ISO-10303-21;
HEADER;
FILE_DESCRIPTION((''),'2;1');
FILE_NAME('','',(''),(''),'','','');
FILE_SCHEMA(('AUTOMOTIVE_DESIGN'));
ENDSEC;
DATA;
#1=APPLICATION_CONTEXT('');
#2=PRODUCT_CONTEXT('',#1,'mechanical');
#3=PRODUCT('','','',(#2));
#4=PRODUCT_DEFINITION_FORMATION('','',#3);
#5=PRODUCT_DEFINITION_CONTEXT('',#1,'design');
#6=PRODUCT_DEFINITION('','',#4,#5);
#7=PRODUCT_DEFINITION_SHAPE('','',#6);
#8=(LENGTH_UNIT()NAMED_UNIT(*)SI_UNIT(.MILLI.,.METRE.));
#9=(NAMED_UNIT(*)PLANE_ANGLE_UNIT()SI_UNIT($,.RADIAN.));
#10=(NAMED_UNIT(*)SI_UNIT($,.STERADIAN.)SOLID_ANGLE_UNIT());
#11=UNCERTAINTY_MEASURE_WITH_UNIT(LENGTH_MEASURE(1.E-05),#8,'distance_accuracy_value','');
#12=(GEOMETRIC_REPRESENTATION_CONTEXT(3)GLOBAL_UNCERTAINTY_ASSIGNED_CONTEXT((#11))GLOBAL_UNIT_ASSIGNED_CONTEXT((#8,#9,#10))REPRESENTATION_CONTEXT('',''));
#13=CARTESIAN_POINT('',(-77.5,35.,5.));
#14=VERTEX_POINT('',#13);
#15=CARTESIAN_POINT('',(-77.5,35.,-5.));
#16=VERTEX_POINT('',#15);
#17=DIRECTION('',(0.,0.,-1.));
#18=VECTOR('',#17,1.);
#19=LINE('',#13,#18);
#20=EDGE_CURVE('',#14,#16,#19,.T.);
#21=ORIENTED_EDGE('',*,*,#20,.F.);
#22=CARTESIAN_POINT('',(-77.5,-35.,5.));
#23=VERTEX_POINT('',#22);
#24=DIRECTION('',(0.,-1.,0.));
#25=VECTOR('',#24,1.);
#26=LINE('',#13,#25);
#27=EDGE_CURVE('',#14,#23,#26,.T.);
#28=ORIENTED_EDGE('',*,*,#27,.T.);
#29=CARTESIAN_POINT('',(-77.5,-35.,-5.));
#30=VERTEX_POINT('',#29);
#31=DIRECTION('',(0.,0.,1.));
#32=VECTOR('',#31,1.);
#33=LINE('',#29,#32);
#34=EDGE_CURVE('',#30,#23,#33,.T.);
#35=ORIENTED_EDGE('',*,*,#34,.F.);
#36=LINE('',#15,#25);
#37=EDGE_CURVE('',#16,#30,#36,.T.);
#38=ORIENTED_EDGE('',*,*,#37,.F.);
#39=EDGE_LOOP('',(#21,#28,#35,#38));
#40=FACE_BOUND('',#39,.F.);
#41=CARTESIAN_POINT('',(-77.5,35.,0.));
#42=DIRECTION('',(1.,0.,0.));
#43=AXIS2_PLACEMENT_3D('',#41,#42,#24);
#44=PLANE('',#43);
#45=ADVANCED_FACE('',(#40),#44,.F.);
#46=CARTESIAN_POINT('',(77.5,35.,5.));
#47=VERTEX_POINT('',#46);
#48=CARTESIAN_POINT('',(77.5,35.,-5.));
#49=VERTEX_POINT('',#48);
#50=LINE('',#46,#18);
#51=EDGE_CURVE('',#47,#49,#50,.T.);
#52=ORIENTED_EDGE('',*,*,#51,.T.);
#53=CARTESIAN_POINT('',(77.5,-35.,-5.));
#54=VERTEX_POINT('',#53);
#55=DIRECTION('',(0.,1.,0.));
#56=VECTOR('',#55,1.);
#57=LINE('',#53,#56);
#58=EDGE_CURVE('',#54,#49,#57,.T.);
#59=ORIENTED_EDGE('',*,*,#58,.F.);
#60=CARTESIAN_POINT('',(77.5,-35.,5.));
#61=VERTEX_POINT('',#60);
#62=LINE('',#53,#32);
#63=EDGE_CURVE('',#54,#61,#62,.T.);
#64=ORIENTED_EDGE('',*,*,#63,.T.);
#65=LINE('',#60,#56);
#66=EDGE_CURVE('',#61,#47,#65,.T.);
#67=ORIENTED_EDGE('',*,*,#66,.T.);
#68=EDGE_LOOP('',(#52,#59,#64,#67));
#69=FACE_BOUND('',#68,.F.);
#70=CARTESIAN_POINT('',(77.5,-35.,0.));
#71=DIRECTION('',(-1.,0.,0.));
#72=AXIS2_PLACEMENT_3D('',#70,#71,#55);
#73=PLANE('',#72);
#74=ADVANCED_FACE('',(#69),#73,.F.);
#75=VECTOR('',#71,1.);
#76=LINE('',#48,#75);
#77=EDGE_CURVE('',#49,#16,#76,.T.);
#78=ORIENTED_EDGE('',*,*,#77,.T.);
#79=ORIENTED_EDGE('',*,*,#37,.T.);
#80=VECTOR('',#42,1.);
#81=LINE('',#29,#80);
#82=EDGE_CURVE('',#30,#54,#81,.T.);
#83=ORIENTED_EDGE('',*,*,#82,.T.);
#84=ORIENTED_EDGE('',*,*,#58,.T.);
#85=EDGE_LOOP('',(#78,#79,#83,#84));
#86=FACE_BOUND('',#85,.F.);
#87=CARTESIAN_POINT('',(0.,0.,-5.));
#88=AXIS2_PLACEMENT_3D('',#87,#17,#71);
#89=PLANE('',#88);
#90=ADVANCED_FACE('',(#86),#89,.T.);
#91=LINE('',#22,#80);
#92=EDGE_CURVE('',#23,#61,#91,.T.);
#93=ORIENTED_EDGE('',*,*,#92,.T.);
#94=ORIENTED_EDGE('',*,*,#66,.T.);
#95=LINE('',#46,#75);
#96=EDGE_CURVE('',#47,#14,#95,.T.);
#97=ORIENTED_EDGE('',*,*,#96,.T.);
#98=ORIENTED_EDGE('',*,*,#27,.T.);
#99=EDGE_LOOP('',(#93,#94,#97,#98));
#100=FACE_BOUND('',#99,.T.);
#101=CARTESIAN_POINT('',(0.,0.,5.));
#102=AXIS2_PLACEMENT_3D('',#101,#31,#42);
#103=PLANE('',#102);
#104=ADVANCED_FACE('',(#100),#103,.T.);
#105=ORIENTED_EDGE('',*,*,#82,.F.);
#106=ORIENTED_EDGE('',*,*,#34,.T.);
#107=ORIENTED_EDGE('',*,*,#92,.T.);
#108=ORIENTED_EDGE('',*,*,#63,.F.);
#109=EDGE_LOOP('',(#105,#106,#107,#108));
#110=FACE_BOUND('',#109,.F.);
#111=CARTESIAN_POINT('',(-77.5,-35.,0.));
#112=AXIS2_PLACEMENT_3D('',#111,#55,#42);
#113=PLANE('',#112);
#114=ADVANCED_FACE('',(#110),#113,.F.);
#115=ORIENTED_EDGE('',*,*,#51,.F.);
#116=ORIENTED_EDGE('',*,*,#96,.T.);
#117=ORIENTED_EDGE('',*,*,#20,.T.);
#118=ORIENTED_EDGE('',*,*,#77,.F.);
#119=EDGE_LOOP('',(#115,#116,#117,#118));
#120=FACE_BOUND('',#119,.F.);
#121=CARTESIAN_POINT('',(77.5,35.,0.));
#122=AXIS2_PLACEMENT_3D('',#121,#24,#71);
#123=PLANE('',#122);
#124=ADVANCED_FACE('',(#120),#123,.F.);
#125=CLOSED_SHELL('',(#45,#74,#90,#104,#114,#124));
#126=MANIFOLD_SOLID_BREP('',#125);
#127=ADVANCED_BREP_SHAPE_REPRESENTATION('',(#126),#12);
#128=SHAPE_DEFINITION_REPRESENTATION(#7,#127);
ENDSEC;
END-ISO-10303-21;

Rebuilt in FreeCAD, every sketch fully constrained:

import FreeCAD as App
import Part
import Sketcher


def add_polygon(sketch, points):
    """Adds a closed chain of lines whose ends are joined by coincident constraints."""
    first, n = sketch.GeometryCount, len(points)
    for a, b in zip(points, points[1:] + points[:1]):
        sketch.addGeometry(Part.LineSegment(App.Vector(*a, 0), App.Vector(*b, 0)), False)
    for i in range(n):
        sketch.addConstraint(Sketcher.Constraint("Coincident", first + i, 2, first + (i + 1) % n, 1))

doc = App.newDocument("Part")
params = doc.addObject("Spreadsheet::Sheet", "Params")
for row, (alias, value) in enumerate([
    ("sketch1_width", "155 mm"),
    ("sketch1_height", "70 mm"),
    ("pad1_length", "5 mm"),
], start=1):
    params.set(f"A{row}", alias)
    params.set(f"B{row}", "=" + value)
    params.setAlias(f"B{row}", alias)

body = doc.addObject("PartDesign::Body", "Body")

sketch1 = body.newObject("Sketcher::SketchObject", "Sketch")
sketch1.AttachmentSupport = (doc.getObject("XY_Plane"), [""])
sketch1.MapMode = "FlatFace"
add_polygon(sketch1, [(-78, 35), (-78, -35), (78, -35), (78, 35)])
sketch1.addConstraint([
    Sketcher.Constraint("Vertical", 0),
    Sketcher.Constraint("Horizontal", 1),
    Sketcher.Constraint("Vertical", 2),
    Sketcher.Constraint("Horizontal", 3),
    Sketcher.Constraint("Symmetric", 0, 2, 2, 2, -1, 1),
    Sketcher.Constraint("DistanceX", 1, 1, 1, 2, 155.0),
    Sketcher.Constraint("DistanceY", 0, 2, 0, 1, 70.0),
])
sketch1.setExpression("Constraints[9]", "Params.sketch1_width")
sketch1.setExpression("Constraints[10]", "Params.sketch1_height")
pad1 = body.newObject("PartDesign::Pad", "Pad")
pad1.Profile = sketch1
pad1.setExpression("Length", "Params.pad1_length")
doc.recompute()

mirrored = body.newObject("PartDesign::Mirrored", "Mirrored")
mirrored.Originals = [pad1]
mirrored.MirrorPlane = (doc.getObject("XY_Plane"), [""])
body.Tip = mirrored

doc.recompute()
